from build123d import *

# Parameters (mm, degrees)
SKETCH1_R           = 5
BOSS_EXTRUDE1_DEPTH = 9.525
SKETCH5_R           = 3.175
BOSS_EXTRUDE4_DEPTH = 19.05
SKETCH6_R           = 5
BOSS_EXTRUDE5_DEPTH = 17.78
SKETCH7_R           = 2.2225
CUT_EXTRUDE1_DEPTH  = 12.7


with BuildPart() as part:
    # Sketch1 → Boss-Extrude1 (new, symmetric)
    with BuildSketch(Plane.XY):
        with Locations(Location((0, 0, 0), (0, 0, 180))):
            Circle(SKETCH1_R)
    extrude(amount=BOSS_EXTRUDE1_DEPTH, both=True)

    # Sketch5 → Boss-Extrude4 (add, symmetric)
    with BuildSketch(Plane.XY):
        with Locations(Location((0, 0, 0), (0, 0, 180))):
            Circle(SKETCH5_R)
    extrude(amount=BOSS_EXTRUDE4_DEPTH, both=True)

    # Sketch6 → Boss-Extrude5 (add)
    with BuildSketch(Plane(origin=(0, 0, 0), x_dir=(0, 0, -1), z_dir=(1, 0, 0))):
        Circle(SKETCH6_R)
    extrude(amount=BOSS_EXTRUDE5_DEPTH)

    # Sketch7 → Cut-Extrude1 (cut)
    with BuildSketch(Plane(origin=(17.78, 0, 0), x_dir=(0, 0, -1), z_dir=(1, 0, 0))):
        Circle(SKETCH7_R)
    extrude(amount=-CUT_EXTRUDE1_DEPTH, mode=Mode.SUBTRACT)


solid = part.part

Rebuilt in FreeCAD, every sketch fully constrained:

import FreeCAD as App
import Part
import Sketcher
Q = App.Units.Quantity

doc = App.newDocument("Part")
body = doc.addObject("PartDesign::Body", "Body")

# Sketch on XY plane
sketch1 = body.newObject("Sketcher::SketchObject", "Sketch")
sketch1.AttachmentSupport = (doc.getObject("XY_Plane"), [""])
sketch1.MapMode = "FlatFace"
sketch1.addGeometry(Part.Circle(App.Vector(0, 0, 0), App.Vector(0, 0, 1), 5), False)
sketch1.addConstraint(Sketcher.Constraint("Coincident", 0, 3, -1, 1))
sketch1.addConstraint(Sketcher.Constraint("Diameter", 0, 10.0))
pad1 = body.newObject("PartDesign::Pad", "Pad")
pad1.Profile = sketch1
pad1.Length = Q("0.75 in")
pad1.Midplane = True

# Sketch on XY plane
sketch2 = body.newObject("Sketcher::SketchObject", "Sketch001")
sketch2.AttachmentSupport = (doc.getObject("XY_Plane"), [""])
sketch2.MapMode = "FlatFace"
sketch2.addGeometry(Part.Circle(App.Vector(0, 0, 0), App.Vector(0, 0, 1), 3.2), False)
sketch2.addConstraint(Sketcher.Constraint("Coincident", 0, 3, -1, 1))
sketch2.addConstraint(Sketcher.Constraint("Diameter", 0, Q("0.25 in")))
pad2 = body.newObject("PartDesign::Pad", "Pad001")
pad2.Profile = sketch2
pad2.Length = Q("1.5 in")
pad2.Midplane = True

# Sketch on YZ plane
sketch3 = body.newObject("Sketcher::SketchObject", "Sketch002")
sketch3.AttachmentSupport = (doc.getObject("YZ_Plane"), [""])
sketch3.MapMode = "FlatFace"
sketch3.addGeometry(Part.Circle(App.Vector(0, 0, 0), App.Vector(0, 0, 1), 5), False)
sketch3.addConstraint(Sketcher.Constraint("Coincident", 0, 3, -1, 1))
sketch3.addConstraint(Sketcher.Constraint("Diameter", 0, 10.0))
pad3 = body.newObject("PartDesign::Pad", "Pad002")
pad3.Profile = sketch3
pad3.Length = Q("0.7 in")

# Sketch on YZ plane
sketch4 = body.newObject("Sketcher::SketchObject", "Sketch003")
sketch4.AttachmentSupport = (doc.getObject("YZ_Plane"), [""])
sketch4.MapMode = "FlatFace"
sketch4.AttachmentOffset = App.Placement(App.Vector(0, 0, 0.7 * 25.4), App.Rotation())
sketch4.addGeometry(Part.Circle(App.Vector(0, 0, 0), App.Vector(0, 0, 1), 2.2), False)
sketch4.addConstraint(Sketcher.Constraint("Coincident", 0, 3, -1, 1))
sketch4.addConstraint(Sketcher.Constraint("Diameter", 0, Q("0.175 in")))
pocket1 = body.newObject("PartDesign::Pocket", "Pocket")
pocket1.Profile = sketch4
pocket1.Length = Q("0.5 in")

doc.recompute()
